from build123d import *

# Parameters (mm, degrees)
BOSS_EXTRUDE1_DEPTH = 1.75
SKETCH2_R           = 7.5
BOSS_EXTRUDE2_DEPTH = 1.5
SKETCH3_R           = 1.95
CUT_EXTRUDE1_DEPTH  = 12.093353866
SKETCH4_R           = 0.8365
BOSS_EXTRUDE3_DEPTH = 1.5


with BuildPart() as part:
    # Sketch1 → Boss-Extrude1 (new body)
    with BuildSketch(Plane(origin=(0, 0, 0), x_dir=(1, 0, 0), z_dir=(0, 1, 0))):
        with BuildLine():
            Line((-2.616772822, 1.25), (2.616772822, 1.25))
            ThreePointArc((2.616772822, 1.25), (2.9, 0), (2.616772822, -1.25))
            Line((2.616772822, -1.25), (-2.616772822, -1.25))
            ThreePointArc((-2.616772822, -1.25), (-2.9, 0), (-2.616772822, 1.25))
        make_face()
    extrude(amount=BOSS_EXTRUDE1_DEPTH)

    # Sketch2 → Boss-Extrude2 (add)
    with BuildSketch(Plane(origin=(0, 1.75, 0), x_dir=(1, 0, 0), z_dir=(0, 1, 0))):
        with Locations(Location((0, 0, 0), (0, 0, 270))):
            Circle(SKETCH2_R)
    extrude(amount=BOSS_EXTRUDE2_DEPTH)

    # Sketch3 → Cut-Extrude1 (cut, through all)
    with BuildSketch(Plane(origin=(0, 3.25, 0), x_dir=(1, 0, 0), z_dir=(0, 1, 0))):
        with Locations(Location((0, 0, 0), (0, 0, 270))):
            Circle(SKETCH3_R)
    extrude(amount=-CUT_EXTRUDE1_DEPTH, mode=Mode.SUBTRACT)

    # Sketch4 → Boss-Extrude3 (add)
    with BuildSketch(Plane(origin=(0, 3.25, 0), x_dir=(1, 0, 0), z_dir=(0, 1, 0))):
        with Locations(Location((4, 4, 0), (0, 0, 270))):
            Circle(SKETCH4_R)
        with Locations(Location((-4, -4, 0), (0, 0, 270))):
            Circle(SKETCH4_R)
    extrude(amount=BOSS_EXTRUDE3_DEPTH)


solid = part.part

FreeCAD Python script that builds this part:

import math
import FreeCAD as App
import Part
import Sketcher

V = App.Vector

doc = App.newDocument("Part")
params = doc.addObject("Spreadsheet::Sheet", "Params")
for row, (alias, value) in enumerate([
    ("sketch1_radius", "2.9 mm"),
    ("pad1_length", "1.75 mm"),
    ("sketch2_diameter", "15 mm"),
    ("pad2_length", "1.5 mm"),
    ("sketch3_diameter", "3.9 mm"),
    ("pad3_length", "1.5 mm"),
], start=1):
    params.set(f"A{row}", alias)
    params.set(f"B{row}", "=" + value)
    params.setAlias(f"B{row}", alias)

body = doc.addObject("PartDesign::Body", "Body")

# Sketch on XZ plane
sketch1 = body.newObject("Sketcher::SketchObject", "Sketch")
sketch1.AttachmentSupport = (doc.getObject("XZ_Plane"), [""])
sketch1.MapMode = "FlatFace"
sketch1.addGeometry([
    Part.LineSegment(V(2.6, -1.2, 0), V(-2.6, -1.2, 0)),
    Part.ArcOfCircle(Part.Circle(V(0, 0, 0), V(0, 0, 1), 2.9), math.radians(154), math.radians(206)),
    Part.LineSegment(V(-2.6, 1.2, 0), V(2.6, 1.2, 0)),
    Part.ArcOfCircle(Part.Circle(V(0, 0, 0), V(0, 0, 1), 2.9), math.radians(-26), math.radians(26)),
], False)
sketch1.addConstraint([
    Sketcher.Constraint("Coincident", 0, 2, 1, 2),
    Sketcher.Constraint("Coincident", 1, 1, 2, 1),
    Sketcher.Constraint("Coincident", 2, 2, 3, 2),
    Sketcher.Constraint("Coincident", 3, 1, 0, 1),
    Sketcher.Constraint("Horizontal", 0),
    Sketcher.Constraint("Horizontal", 2),
    Sketcher.Constraint("Coincident", 1, 3, -1, 1),
    Sketcher.Constraint("Coincident", 3, 3, -1, 1),
    Sketcher.Constraint("Equal", 1, 3),
    Sketcher.Constraint("Vertical", 0, 2, 1, 1),
    Sketcher.Constraint("Radius", 1, 2.9),
    Sketcher.Constraint("DistanceY", 0, 2, 1, 1, 2.5),
])
sketch1.setExpression("Constraints[10]", "Params.sketch1_radius")
pad1 = body.newObject("PartDesign::Pad", "Pad")
pad1.Profile = sketch1
pad1.setExpression("Length", "Params.pad1_length")
pad1.Reversed = True

# Sketch on XZ plane
sketch2 = body.newObject("Sketcher::SketchObject", "Sketch001")
sketch2.AttachmentSupport = (doc.getObject("XZ_Plane"), [""])
sketch2.MapMode = "FlatFace"
sketch2.AttachmentOffset = App.Placement(V(0, 0, -1.75), App.Rotation())
sketch2.addGeometry(Part.Circle(V(0, 0, 0), V(0, 0, 1), 8), False)
sketch2.addConstraint([
    Sketcher.Constraint("Coincident", 0, 3, -1, 1),
    Sketcher.Constraint("Diameter", 0, 15.0),
])
sketch2.setExpression("Constraints[1]", "Params.sketch2_diameter")
pad2 = body.newObject("PartDesign::Pad", "Pad001")
pad2.Profile = sketch2
pad2.setExpression("Length", "Params.pad2_length")
pad2.Reversed = True

# Sketch on XZ plane
sketch3 = body.newObject("Sketcher::SketchObject", "Sketch002")
sketch3.AttachmentSupport = (doc.getObject("XZ_Plane"), [""])
sketch3.MapMode = "FlatFace"
sketch3.AttachmentOffset = App.Placement(V(0, 0, -3.25), App.Rotation())
sketch3.addGeometry(Part.Circle(V(0, 0, 0), V(0, 0, 1), 1.9), False)
sketch3.addConstraint([
    Sketcher.Constraint("Coincident", 0, 3, -1, 1),
    Sketcher.Constraint("Diameter", 0, 3.9),
])
sketch3.setExpression("Constraints[1]", "Params.sketch3_diameter")
pocket1 = body.newObject("PartDesign::Pocket", "Pocket")
pocket1.Profile = sketch3
pocket1.Type = "ThroughAll"
pocket1.Reversed = True

# Sketch on XZ plane
sketch4 = body.newObject("Sketcher::SketchObject", "Sketch003")
sketch4.AttachmentSupport = (doc.getObject("XZ_Plane"), [""])
sketch4.MapMode = "FlatFace"
sketch4.AttachmentOffset = App.Placement(V(0, 0, -3.25), App.Rotation())
sketch4.addGeometry([
    Part.Circle(V(4, -4, 0), V(0, 0, 1), 0.8),
    Part.Circle(V(-4, 4, 0), V(0, 0, 1), 0.8),
], False)
sketch4.addConstraint([
    Sketcher.Constraint("Equal", 0, 1),
    Sketcher.Constraint("Symmetric", 0, 3, 1, 3, -1, 1),
    Sketcher.Constraint("Diameter", 0, 1.673),
    Sketcher.Constraint("DistanceX", -1, 1, 0, 3, 4.0),
    Sketcher.Constraint("DistanceY", 0, 3, -1, 1, 4.0),
])
pad3 = body.newObject("PartDesign::Pad", "Pad002")
pad3.Profile = sketch4
pad3.setExpression("Length", "Params.pad3_length")
pad3.Reversed = True

doc.recompute()
